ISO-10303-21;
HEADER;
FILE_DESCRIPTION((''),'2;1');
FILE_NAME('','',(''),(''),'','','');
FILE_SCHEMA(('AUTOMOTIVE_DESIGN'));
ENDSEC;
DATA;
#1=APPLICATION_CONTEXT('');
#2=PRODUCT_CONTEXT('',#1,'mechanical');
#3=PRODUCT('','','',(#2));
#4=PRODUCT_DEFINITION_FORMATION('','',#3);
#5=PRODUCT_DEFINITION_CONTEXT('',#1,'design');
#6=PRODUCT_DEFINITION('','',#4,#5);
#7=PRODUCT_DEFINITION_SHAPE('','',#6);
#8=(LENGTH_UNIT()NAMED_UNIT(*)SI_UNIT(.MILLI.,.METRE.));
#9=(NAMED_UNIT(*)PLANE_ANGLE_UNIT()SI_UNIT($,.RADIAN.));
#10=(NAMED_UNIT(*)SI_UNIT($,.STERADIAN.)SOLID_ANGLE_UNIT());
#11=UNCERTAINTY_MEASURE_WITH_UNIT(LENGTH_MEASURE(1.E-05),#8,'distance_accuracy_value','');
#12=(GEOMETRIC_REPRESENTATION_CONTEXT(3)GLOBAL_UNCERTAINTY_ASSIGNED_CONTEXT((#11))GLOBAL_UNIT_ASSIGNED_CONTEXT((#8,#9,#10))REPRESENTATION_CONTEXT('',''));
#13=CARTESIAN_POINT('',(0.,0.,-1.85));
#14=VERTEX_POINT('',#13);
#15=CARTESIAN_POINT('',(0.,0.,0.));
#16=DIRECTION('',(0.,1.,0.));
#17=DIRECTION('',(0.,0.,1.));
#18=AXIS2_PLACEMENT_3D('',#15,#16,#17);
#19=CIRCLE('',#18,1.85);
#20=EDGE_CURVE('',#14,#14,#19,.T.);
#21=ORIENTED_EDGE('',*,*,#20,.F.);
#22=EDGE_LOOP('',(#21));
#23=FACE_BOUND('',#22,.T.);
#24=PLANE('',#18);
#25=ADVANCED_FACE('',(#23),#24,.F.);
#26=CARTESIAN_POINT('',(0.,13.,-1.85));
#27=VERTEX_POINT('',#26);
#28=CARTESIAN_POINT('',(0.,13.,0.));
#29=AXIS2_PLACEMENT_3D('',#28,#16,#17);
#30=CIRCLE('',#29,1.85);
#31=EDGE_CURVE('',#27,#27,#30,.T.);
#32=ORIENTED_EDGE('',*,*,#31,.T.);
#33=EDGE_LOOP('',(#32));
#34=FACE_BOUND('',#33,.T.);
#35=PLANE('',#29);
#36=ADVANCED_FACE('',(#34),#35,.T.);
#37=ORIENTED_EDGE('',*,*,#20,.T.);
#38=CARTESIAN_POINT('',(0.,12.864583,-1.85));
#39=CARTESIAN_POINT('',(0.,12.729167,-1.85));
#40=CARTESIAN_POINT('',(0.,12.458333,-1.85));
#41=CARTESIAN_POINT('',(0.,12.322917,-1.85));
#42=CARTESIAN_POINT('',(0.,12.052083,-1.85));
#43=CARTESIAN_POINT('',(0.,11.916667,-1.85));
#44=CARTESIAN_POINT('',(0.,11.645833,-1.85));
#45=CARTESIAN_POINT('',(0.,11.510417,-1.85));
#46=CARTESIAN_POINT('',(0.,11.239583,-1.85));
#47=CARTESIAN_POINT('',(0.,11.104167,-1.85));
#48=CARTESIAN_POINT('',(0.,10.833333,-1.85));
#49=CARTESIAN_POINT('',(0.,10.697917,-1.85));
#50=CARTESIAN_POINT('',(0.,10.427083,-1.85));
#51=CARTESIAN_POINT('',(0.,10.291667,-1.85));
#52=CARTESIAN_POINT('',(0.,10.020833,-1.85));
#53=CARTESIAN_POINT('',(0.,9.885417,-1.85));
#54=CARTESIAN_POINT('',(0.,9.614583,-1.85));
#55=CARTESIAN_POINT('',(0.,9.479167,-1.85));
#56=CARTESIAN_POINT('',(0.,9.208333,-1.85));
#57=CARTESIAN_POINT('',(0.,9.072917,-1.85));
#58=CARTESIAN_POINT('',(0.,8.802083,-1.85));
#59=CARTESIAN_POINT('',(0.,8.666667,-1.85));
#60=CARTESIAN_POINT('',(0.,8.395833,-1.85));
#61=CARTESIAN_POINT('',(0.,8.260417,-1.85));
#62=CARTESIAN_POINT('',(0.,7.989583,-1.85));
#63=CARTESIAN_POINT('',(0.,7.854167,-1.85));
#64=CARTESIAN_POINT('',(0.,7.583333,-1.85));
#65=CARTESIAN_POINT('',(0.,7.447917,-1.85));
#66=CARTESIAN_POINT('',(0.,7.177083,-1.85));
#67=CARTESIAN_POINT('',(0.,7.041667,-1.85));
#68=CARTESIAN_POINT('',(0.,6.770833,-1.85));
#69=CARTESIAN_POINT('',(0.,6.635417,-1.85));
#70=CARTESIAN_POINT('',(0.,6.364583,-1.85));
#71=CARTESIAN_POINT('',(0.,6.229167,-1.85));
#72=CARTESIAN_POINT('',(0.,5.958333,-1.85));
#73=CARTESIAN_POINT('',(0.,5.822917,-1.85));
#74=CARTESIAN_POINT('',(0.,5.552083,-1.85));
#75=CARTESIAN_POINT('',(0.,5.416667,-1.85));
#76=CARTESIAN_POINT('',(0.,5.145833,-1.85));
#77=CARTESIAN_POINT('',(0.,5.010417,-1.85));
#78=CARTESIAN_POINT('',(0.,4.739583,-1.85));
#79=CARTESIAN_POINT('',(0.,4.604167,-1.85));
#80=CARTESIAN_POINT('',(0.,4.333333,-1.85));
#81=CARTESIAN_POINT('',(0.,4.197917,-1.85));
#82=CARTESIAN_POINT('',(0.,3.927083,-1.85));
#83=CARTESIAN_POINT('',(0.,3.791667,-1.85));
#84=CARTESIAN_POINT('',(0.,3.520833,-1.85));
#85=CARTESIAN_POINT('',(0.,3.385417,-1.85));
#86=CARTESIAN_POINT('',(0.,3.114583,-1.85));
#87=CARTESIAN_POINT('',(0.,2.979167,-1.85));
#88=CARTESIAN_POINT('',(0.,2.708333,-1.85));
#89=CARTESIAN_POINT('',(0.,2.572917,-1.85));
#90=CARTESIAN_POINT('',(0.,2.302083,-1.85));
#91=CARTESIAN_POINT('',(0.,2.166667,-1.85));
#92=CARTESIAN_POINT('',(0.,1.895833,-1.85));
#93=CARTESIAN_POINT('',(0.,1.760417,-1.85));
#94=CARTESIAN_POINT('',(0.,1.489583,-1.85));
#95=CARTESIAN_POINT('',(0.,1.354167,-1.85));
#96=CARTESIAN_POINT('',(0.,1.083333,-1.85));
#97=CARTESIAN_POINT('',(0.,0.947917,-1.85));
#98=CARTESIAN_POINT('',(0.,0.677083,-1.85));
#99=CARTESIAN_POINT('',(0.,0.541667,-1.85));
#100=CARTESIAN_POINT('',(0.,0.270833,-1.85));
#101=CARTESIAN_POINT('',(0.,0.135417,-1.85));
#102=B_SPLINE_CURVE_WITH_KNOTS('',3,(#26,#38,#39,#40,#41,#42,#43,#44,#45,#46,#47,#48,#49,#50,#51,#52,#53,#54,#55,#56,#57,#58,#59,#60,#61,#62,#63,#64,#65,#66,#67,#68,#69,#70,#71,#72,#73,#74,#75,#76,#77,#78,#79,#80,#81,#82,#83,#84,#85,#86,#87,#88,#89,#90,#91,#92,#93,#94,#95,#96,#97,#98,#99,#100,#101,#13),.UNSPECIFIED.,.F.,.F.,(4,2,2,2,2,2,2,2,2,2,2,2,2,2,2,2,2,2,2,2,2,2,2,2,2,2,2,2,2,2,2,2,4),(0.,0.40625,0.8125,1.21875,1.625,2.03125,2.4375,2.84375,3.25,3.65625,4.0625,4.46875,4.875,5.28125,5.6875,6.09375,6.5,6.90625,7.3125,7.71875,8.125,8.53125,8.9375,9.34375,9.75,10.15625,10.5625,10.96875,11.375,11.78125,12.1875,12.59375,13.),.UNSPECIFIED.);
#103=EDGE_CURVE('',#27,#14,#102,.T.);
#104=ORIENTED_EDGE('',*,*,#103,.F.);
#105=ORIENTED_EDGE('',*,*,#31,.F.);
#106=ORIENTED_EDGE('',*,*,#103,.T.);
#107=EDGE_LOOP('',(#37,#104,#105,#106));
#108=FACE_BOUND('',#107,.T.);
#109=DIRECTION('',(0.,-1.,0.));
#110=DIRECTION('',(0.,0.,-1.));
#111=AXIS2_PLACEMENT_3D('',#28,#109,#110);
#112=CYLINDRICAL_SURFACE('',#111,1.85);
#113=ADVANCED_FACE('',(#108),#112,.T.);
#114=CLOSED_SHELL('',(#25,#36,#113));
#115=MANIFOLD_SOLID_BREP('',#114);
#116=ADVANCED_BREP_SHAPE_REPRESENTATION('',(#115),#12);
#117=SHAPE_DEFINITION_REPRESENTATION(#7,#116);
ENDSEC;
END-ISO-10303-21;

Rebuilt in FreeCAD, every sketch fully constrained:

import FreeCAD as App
import Part
import Sketcher

V = App.Vector

doc = App.newDocument("Part")
body = doc.addObject("PartDesign::Body", "Body")

# Sketch on XZ plane
sketch1 = body.newObject("Sketcher::SketchObject", "Sketch")
sketch1.AttachmentSupport = (doc.getObject("XZ_Plane"), [""])
sketch1.MapMode = "FlatFace"
sketch1.addGeometry(Part.Circle(V(0, 0, 0), V(0, 0, 1), 1.9), False)
sketch1.addConstraint(Sketcher.Constraint("Coincident", 0, 3, -1, 1))
sketch1.addConstraint(Sketcher.Constraint("Diameter", 0, 3.7))
pad1 = body.newObject("PartDesign::Pad", "Pad")
pad1.Profile = sketch1
pad1.Length = 13
pad1.Reversed = True

doc.recompute()
